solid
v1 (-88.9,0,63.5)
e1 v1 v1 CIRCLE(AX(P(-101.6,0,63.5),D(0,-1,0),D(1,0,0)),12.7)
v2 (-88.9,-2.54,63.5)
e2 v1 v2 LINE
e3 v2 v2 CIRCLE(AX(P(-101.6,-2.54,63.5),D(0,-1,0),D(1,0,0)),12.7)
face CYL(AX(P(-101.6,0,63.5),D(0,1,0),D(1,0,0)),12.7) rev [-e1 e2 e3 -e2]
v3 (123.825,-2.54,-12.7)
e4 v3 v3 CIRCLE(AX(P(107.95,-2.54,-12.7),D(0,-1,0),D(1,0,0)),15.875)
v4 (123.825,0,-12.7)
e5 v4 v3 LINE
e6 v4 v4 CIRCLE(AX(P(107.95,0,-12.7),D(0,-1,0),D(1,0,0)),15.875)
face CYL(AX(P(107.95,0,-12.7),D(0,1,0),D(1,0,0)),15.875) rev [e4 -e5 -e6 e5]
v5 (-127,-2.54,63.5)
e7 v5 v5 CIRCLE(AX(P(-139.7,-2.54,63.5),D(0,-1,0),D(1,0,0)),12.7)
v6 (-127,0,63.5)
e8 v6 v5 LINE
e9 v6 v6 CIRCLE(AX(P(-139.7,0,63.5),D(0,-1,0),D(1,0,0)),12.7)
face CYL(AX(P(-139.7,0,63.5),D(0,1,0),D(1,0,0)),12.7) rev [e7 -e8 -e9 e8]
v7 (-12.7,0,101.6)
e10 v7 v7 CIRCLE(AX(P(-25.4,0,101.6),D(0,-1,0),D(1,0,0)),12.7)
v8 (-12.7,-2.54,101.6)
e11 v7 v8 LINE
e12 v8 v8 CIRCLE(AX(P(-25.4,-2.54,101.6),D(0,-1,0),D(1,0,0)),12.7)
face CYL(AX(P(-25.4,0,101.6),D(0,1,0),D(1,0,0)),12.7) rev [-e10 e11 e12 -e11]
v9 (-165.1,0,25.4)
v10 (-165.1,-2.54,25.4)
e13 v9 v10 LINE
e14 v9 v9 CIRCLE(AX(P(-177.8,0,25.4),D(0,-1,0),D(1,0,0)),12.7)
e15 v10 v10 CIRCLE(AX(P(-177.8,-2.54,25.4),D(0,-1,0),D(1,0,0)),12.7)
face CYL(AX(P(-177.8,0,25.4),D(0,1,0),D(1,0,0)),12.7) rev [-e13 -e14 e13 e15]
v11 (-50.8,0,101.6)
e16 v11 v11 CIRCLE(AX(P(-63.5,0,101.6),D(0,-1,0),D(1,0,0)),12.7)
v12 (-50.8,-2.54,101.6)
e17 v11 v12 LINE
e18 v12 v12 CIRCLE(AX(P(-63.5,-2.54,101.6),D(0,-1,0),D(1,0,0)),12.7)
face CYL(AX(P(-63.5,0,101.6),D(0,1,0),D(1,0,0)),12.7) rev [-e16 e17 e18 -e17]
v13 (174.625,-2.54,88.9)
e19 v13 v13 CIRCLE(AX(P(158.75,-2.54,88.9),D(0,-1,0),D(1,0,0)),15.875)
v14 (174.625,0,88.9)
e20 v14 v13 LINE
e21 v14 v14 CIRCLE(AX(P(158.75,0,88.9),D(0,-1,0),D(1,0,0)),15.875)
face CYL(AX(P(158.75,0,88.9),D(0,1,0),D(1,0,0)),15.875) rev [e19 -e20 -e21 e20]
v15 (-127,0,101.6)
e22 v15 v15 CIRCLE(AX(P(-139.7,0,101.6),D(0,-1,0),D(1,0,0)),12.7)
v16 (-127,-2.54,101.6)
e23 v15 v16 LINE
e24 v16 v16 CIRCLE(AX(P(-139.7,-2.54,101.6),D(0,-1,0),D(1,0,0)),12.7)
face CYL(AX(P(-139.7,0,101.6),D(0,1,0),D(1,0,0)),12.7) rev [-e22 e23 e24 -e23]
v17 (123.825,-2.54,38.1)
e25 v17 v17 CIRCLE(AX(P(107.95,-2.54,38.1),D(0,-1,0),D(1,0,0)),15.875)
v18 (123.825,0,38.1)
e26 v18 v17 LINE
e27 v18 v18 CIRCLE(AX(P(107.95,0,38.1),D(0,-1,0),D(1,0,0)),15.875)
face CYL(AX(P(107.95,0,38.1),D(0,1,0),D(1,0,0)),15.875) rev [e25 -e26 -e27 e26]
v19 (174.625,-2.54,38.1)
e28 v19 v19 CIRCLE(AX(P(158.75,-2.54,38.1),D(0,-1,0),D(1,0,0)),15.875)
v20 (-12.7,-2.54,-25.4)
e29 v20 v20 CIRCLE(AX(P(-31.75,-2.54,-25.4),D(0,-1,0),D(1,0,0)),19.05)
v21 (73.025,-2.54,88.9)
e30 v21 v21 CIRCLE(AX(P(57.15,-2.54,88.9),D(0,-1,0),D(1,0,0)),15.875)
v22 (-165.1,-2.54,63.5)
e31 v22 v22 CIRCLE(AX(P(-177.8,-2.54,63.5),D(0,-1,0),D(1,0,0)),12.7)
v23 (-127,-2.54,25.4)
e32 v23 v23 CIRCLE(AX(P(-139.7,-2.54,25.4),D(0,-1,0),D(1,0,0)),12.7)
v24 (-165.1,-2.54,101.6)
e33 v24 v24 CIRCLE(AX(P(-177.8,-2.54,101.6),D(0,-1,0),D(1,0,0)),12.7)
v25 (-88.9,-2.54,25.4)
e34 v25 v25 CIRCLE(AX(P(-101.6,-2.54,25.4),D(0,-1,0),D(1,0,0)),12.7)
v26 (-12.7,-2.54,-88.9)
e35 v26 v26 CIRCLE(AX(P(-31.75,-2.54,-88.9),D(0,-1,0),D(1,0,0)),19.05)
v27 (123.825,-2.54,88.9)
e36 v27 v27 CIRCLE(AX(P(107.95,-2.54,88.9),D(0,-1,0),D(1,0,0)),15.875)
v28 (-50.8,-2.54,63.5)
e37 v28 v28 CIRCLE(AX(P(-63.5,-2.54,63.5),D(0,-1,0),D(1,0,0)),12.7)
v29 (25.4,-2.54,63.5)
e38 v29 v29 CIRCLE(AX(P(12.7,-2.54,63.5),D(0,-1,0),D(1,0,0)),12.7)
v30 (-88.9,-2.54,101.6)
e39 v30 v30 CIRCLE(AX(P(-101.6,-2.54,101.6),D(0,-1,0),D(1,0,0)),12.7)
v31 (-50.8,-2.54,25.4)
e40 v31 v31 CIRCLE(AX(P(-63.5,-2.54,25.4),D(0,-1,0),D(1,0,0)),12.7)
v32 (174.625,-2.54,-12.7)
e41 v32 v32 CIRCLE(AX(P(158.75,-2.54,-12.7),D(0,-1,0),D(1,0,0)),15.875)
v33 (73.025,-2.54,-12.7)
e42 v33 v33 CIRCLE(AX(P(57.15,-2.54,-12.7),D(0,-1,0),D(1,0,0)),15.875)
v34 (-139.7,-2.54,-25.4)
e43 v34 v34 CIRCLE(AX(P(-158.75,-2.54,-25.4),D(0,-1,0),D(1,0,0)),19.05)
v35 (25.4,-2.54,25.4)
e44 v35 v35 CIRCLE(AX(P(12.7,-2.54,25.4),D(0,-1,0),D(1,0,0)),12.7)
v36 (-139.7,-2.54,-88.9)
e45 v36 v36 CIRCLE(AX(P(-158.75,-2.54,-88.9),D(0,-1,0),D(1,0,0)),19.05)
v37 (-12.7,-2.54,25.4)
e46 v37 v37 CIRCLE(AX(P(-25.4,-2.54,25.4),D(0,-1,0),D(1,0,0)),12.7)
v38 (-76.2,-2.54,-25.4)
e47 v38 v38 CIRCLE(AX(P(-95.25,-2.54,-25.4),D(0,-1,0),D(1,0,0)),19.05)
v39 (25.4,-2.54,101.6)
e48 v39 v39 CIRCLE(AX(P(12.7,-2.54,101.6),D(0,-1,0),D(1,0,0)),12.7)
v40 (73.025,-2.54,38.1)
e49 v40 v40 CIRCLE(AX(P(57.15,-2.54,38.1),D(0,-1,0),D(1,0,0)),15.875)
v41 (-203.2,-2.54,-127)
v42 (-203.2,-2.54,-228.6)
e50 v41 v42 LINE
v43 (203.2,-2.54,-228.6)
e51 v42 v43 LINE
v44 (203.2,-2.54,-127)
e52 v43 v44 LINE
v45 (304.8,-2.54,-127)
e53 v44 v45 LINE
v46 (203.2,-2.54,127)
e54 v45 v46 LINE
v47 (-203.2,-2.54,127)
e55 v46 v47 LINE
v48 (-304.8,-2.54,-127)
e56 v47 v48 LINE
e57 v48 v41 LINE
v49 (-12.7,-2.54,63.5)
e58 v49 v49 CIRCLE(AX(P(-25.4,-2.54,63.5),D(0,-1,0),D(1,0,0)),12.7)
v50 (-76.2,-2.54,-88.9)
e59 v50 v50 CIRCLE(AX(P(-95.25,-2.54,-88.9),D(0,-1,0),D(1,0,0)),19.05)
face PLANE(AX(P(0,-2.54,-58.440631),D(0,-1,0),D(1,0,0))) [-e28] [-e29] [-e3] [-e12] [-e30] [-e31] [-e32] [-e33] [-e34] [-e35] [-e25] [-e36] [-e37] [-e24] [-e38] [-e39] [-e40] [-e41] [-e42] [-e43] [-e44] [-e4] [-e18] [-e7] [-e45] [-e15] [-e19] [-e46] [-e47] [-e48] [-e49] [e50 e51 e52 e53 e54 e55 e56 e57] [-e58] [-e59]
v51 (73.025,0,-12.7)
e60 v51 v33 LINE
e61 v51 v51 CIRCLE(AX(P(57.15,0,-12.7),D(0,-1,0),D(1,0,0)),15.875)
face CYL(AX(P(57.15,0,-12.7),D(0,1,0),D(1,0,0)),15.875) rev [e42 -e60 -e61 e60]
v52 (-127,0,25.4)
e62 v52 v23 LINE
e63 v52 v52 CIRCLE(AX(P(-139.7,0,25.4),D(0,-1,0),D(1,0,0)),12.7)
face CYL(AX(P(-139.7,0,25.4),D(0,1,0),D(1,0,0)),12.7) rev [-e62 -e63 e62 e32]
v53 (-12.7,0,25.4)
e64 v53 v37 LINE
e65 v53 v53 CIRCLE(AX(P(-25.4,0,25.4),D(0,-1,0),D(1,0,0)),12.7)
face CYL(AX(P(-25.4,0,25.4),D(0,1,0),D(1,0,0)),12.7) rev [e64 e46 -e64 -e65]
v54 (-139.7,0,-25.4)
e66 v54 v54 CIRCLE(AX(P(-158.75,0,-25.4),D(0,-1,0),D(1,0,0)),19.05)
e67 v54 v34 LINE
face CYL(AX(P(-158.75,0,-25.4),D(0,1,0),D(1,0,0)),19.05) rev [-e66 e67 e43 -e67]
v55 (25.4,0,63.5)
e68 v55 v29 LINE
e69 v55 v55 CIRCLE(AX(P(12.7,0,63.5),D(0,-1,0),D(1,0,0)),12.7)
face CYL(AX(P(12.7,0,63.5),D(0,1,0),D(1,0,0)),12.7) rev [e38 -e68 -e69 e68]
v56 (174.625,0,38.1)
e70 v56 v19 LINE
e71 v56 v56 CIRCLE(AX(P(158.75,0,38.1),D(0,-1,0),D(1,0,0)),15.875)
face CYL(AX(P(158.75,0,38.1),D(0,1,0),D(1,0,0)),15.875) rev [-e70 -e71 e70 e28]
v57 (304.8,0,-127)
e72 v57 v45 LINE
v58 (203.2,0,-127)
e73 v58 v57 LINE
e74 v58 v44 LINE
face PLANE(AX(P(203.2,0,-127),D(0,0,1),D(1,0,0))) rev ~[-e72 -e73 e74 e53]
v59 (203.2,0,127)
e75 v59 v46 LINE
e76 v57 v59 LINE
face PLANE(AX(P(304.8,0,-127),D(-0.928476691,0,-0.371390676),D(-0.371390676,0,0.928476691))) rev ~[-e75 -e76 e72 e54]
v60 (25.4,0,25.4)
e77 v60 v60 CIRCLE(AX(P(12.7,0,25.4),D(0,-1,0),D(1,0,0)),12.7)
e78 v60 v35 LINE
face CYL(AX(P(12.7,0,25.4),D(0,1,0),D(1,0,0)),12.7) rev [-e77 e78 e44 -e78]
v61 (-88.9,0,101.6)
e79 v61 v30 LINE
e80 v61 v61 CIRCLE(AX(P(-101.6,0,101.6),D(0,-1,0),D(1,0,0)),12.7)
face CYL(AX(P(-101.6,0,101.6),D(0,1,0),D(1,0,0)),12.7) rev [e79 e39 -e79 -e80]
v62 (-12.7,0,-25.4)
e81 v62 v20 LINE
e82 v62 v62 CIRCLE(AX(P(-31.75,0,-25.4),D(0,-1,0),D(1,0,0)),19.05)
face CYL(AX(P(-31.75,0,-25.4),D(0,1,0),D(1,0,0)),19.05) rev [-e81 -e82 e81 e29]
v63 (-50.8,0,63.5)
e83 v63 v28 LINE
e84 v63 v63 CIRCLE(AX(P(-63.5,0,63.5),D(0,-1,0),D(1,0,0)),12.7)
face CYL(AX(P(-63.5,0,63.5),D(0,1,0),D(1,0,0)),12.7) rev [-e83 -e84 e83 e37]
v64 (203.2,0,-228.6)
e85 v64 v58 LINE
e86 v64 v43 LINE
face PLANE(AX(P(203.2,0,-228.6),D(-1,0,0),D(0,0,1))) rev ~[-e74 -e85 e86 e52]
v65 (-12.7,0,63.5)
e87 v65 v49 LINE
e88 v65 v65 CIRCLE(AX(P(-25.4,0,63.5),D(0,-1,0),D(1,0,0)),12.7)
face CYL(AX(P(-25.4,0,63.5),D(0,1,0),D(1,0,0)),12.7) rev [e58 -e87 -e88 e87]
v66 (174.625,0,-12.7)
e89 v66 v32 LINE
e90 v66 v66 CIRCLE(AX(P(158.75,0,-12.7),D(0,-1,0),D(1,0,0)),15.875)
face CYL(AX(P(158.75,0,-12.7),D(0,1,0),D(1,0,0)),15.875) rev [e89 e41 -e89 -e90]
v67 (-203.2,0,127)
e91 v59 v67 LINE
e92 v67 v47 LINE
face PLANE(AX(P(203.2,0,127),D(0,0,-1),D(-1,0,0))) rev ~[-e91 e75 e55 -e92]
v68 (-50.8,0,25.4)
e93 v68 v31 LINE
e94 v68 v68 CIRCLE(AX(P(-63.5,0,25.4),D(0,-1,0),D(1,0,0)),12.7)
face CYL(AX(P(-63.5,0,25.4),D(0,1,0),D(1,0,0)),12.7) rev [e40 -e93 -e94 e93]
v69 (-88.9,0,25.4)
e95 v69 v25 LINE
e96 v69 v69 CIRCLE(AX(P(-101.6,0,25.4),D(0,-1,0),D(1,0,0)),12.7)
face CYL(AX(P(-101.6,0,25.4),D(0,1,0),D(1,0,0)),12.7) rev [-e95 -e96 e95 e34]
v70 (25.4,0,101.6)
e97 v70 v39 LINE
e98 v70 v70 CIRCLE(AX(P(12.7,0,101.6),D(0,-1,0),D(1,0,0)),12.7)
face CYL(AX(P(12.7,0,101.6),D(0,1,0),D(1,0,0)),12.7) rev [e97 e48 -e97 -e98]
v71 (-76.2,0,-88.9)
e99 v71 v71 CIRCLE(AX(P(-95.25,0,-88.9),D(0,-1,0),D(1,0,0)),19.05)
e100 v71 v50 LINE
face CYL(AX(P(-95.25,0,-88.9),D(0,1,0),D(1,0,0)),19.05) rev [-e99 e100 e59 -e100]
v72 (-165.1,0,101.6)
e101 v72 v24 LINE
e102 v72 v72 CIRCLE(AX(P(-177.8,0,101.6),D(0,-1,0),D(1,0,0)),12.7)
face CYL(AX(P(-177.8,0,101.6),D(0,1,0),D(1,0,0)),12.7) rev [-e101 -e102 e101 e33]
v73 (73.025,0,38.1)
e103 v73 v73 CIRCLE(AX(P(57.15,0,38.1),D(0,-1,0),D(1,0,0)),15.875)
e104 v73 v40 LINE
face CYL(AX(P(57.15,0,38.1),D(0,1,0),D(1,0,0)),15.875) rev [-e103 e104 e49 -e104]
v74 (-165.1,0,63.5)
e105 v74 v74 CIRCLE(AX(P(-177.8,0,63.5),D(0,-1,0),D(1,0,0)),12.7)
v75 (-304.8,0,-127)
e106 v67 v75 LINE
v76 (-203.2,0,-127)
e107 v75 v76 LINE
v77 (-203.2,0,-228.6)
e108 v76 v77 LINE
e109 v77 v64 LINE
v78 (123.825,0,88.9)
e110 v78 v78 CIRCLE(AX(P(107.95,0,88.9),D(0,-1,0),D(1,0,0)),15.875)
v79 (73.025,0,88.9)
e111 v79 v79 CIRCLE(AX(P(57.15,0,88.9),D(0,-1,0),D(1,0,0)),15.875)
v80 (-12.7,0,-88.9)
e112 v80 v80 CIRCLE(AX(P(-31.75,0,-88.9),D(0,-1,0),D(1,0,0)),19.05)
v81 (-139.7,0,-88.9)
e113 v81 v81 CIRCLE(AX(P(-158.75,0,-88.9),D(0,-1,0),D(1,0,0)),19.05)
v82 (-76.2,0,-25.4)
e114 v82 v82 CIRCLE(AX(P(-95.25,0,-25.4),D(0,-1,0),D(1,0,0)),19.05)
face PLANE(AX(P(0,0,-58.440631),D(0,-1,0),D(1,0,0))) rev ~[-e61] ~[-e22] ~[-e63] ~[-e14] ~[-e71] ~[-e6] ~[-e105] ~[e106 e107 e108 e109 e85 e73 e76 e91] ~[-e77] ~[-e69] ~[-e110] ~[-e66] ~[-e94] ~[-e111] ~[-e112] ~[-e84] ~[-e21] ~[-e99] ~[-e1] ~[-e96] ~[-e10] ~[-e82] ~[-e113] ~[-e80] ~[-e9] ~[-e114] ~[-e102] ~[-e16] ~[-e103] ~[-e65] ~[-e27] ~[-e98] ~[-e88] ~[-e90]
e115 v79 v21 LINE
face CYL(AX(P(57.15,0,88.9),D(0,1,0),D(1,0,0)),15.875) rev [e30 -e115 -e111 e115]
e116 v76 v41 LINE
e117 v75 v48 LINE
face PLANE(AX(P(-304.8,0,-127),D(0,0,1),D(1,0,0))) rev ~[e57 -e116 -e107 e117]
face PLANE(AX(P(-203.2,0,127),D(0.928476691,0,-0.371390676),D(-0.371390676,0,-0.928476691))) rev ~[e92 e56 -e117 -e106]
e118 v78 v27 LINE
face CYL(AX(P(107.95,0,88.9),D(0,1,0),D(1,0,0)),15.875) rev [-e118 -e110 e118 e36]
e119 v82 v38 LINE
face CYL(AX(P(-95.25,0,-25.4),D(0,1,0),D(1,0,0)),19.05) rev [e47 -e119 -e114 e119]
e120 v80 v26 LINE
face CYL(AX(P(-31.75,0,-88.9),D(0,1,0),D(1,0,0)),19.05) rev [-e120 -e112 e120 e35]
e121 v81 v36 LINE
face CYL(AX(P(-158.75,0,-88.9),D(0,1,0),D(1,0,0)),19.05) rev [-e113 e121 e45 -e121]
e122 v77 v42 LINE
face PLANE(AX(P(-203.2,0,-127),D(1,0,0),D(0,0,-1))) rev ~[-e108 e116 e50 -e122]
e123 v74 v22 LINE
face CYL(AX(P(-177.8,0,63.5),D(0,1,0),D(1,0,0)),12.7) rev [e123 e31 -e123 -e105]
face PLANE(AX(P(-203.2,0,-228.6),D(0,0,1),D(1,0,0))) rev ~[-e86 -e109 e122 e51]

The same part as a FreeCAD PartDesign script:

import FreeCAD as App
import Part
import Sketcher
Q = App.Units.Quantity

doc = App.newDocument("Part")
body = doc.addObject("PartDesign::Body", "Body")

# Sketch on XZ plane
sketch1 = body.newObject("Sketcher::SketchObject", "Sketch")
sketch1.AttachmentSupport = (doc.getObject("XZ_Plane"), [""])
sketch1.MapMode = "FlatFace"
sketch1.addGeometry([
    Part.LineSegment(App.Vector(305, -127, 0), App.Vector(203, 127, 0)),  # 0
    Part.LineSegment(App.Vector(203, 127, 0), App.Vector(-203, 127, 0)),  # 1
    Part.LineSegment(App.Vector(-203, 127, 0), App.Vector(-305, -127, 0)),  # 2
    Part.LineSegment(App.Vector(-305, -127, 0), App.Vector(-203, -127, 0)),  # 3
    Part.LineSegment(App.Vector(-203, -127, 0), App.Vector(-203, -229, 0)),  # 4
    Part.LineSegment(App.Vector(-203, -229, 0), App.Vector(203, -229, 0)),  # 5
    Part.LineSegment(App.Vector(203, -229, 0), App.Vector(203, -127, 0)),  # 6
    Part.LineSegment(App.Vector(203, -127, 0), App.Vector(305, -127, 0)),  # 7
    Part.Circle(App.Vector(-159, -89, 0), App.Vector(0, 0, 1), 19),  # 8
    Part.Circle(App.Vector(-95, -89, 0), App.Vector(0, 0, 1), 19),  # 9
    Part.Circle(App.Vector(-32, -89, 0), App.Vector(0, 0, 1), 19),  # 10
    Part.Circle(App.Vector(-159, -25, 0), App.Vector(0, 0, 1), 19),  # 11
    Part.Circle(App.Vector(-95, -25, 0), App.Vector(0, 0, 1), 19),  # 12
    Part.Circle(App.Vector(-32, -25, 0), App.Vector(0, 0, 1), 19),  # 13
    Part.Circle(App.Vector(57, -13, 0), App.Vector(0, 0, 1), 16),  # 14
    Part.Circle(App.Vector(108, -13, 0), App.Vector(0, 0, 1), 16),  # 15
    Part.Circle(App.Vector(159, -13, 0), App.Vector(0, 0, 1), 16),  # 16
    Part.Circle(App.Vector(-178, 25, 0), App.Vector(0, 0, 1), 13),  # 17
    Part.Circle(App.Vector(-140, 25, 0), App.Vector(0, 0, 1), 13),  # 18
    Part.Circle(App.Vector(-102, 25, 0), App.Vector(0, 0, 1), 13),  # 19
    Part.Circle(App.Vector(-64, 25, 0), App.Vector(0, 0, 1), 13),  # 20
    Part.Circle(App.Vector(-25, 25, 0), App.Vector(0, 0, 1), 13),  # 21
    Part.Circle(App.Vector(-178, 64, 0), App.Vector(0, 0, 1), 13),  # 22
    Part.Circle(App.Vector(-140, 64, 0), App.Vector(0, 0, 1), 13),  # 23
    Part.Circle(App.Vector(-102, 64, 0), App.Vector(0, 0, 1), 13),  # 24
    Part.Circle(App.Vector(-178, 102, 0), App.Vector(0, 0, 1), 13),  # 25
    Part.Circle(App.Vector(-140, 102, 0), App.Vector(0, 0, 1), 13),  # 26
    Part.Circle(App.Vector(-102, 102, 0), App.Vector(0, 0, 1), 13),  # 27
    Part.Circle(App.Vector(-64, 64, 0), App.Vector(0, 0, 1), 13),  # 28
    Part.Circle(App.Vector(-25, 64, 0), App.Vector(0, 0, 1), 13),  # 29
    Part.Circle(App.Vector(-64, 102, 0), App.Vector(0, 0, 1), 13),  # 30
    Part.Circle(App.Vector(-25, 102, 0), App.Vector(0, 0, 1), 13),  # 31
    Part.Circle(App.Vector(13, 25, 0), App.Vector(0, 0, 1), 13),  # 32
    Part.Circle(App.Vector(57, 38, 0), App.Vector(0, 0, 1), 16),  # 33
    Part.Circle(App.Vector(108, 38, 0), App.Vector(0, 0, 1), 16),  # 34
    Part.Circle(App.Vector(159, 38, 0), App.Vector(0, 0, 1), 16),  # 35
    Part.Circle(App.Vector(13, 64, 0), App.Vector(0, 0, 1), 13),  # 36
    Part.Circle(App.Vector(13, 102, 0), App.Vector(0, 0, 1), 13),  # 37
    Part.Circle(App.Vector(57, 89, 0), App.Vector(0, 0, 1), 16),  # 38
    Part.Circle(App.Vector(108, 89, 0), App.Vector(0, 0, 1), 16),  # 39
    Part.Circle(App.Vector(159, 89, 0), App.Vector(0, 0, 1), 16),  # 40
], False)
sketch1.addConstraint([
    Sketcher.Constraint("Coincident", 0, 2, 1, 1),
    Sketcher.Constraint("Coincident", 1, 2, 2, 1),
    Sketcher.Constraint("Coincident", 2, 2, 3, 1),
    Sketcher.Constraint("Coincident", 3, 2, 4, 1),
    Sketcher.Constraint("Coincident", 4, 2, 5, 1),
    Sketcher.Constraint("Coincident", 5, 2, 6, 1),
    Sketcher.Constraint("Coincident", 6, 2, 7, 1),
    Sketcher.Constraint("Coincident", 7, 2, 0, 1),
    Sketcher.Constraint("Horizontal", 1),
    Sketcher.Constraint("Horizontal", 3),
    Sketcher.Constraint("Vertical", 4),
    Sketcher.Constraint("Horizontal", 5),
    Sketcher.Constraint("Vertical", 6),
    Sketcher.Constraint("Horizontal", 7),
    Sketcher.Constraint("Equal", 8, 9),
    Sketcher.Constraint("Equal", 9, 10),
    Sketcher.Constraint("Equal", 10, 11),
    Sketcher.Constraint("Equal", 11, 12),
    Sketcher.Constraint("Equal", 12, 13),
    Sketcher.Constraint("Equal", 14, 15),
    Sketcher.Constraint("Equal", 15, 16),
    Sketcher.Constraint("Equal", 17, 18),
    Sketcher.Constraint("Equal", 18, 19),
    Sketcher.Constraint("Equal", 19, 20),
    Sketcher.Constraint("Equal", 20, 21),
    Sketcher.Constraint("Equal", 21, 22),
    Sketcher.Constraint("Equal", 22, 23),
    Sketcher.Constraint("Equal", 23, 24),
    Sketcher.Constraint("Equal", 24, 25),
    Sketcher.Constraint("Equal", 25, 26),
    Sketcher.Constraint("Equal", 26, 27),
    Sketcher.Constraint("Equal", 27, 28),
    Sketcher.Constraint("Equal", 28, 29),
    Sketcher.Constraint("Equal", 29, 30),
    Sketcher.Constraint("Equal", 30, 31),
    Sketcher.Constraint("Equal", 31, 32),
    Sketcher.Constraint("Equal", 16, 33),
    Sketcher.Constraint("Equal", 33, 34),
    Sketcher.Constraint("Equal", 34, 35),
    Sketcher.Constraint("Equal", 32, 36),
    Sketcher.Constraint("Equal", 36, 37),
    Sketcher.Constraint("Equal", 35, 38),
    Sketcher.Constraint("Equal", 38, 39),
    Sketcher.Constraint("Equal", 39, 40),
    Sketcher.Constraint("Symmetric", 8, 3, 40, 3, -1, 1),
    Sketcher.Constraint("Symmetric", 0, 2, 3, 2, -1, 1),
    Sketcher.Constraint("Symmetric", 1, 2, 6, 2, -1, 1),
    Sketcher.Constraint("Horizontal", 8, 3, 9, 3),
    Sketcher.Constraint("Horizontal", 9, 3, 10, 3),
    Sketcher.Constraint("Horizontal", 11, 3, 12, 3),
    Sketcher.Constraint("Horizontal", 12, 3, 13, 3),
    Sketcher.Constraint("Horizontal", 14, 3, 15, 3),
    Sketcher.Constraint("Horizontal", 15, 3, 16, 3),
    Sketcher.Constraint("Horizontal", 17, 3, 18, 3),
    Sketcher.Constraint("Horizontal", 18, 3, 19, 3),
    Sketcher.Constraint("Horizontal", 19, 3, 20, 3),
    Sketcher.Constraint("Horizontal", 20, 3, 21, 3),
    Sketcher.Constraint("Horizontal", 22, 3, 23, 3),
    Sketcher.Constraint("Horizontal", 23, 3, 24, 3),
    Sketcher.Constraint("Horizontal", 25, 3, 26, 3),
    Sketcher.Constraint("Horizontal", 26, 3, 27, 3),
    Sketcher.Constraint("Horizontal", 24, 3, 28, 3),
    Sketcher.Constraint("Horizontal", 28, 3, 29, 3),
    Sketcher.Constraint("Horizontal", 27, 3, 30, 3),
    Sketcher.Constraint("Horizontal", 30, 3, 31, 3),
    Sketcher.Constraint("Horizontal", 21, 3, 32, 3),
    Sketcher.Constraint("Horizontal", 33, 3, 34, 3),
    Sketcher.Constraint("Horizontal", 34, 3, 35, 3),
    Sketcher.Constraint("Horizontal", 29, 3, 36, 3),
    Sketcher.Constraint("Horizontal", 31, 3, 37, 3),
    Sketcher.Constraint("Horizontal", 38, 3, 39, 3),
    Sketcher.Constraint("Horizontal", 39, 3, 40, 3),
    Sketcher.Constraint("Vertical", 8, 3, 11, 3),
    Sketcher.Constraint("Vertical", 9, 3, 12, 3),
    Sketcher.Constraint("Vertical", 10, 3, 13, 3),
    Sketcher.Constraint("Vertical", 17, 3, 22, 3),
    Sketcher.Constraint("Vertical", 18, 3, 23, 3),
    Sketcher.Constraint("Vertical", 19, 3, 24, 3),
    Sketcher.Constraint("Vertical", 22, 3, 25, 3),
    Sketcher.Constraint("Vertical", 23, 3, 26, 3),
    Sketcher.Constraint("Vertical", 24, 3, 27, 3),
    Sketcher.Constraint("Vertical", 20, 3, 28, 3),
    Sketcher.Constraint("Vertical", 21, 3, 29, 3),
    Sketcher.Constraint("Vertical", 28, 3, 30, 3),
    Sketcher.Constraint("Vertical", 29, 3, 31, 3),
    Sketcher.Constraint("Vertical", 14, 3, 33, 3),
    Sketcher.Constraint("Vertical", 15, 3, 34, 3),
    Sketcher.Constraint("Vertical", 16, 3, 35, 3),
    Sketcher.Constraint("Vertical", 32, 3, 36, 3),
    Sketcher.Constraint("Vertical", 36, 3, 37, 3),
    Sketcher.Constraint("Vertical", 33, 3, 38, 3),
    Sketcher.Constraint("Vertical", 34, 3, 39, 3),
    Sketcher.Constraint("Vertical", 35, 3, 40, 3),
    Sketcher.Constraint("Vertical", 1, 2, 3, 2),
    Sketcher.Constraint("Equal", 3, 7),
    Sketcher.Constraint("Equal", 7, 4),
    Sketcher.Constraint("Diameter", 17, Q("1 in")),
    Sketcher.Constraint("Diameter", 8, Q("1.5 in")),
    Sketcher.Constraint("Diameter", 14, Q("1.25 in")),
    Sketcher.Constraint("DistanceX", 1, 2, 1, 1, Q("16 in")),
    Sketcher.Constraint("DistanceX", 3, 1, 3, 2, Q("4 in")),
    Sketcher.Constraint("DistanceY", 11, 3, -1, 1, Q("1 in")),
    Sketcher.Constraint("DistanceX", 17, 3, -1, 1, Q("7 in")),
    Sketcher.Constraint("DistanceY", -1, 1, 17, 3, Q("1 in")),
    Sketcher.Constraint("DistanceX", 19, 3, -1, 1, Q("4 in")),
    Sketcher.Constraint("DistanceX", 21, 3, -1, 1, Q("1 in")),
    Sketcher.Constraint("DistanceY", -1, 1, 25, 3, Q("4 in")),
    Sketcher.Constraint("DistanceY", -1, 1, 0, 2, Q("5 in")),
    Sketcher.Constraint("DistanceX", 8, 3, 10, 3, Q("5 in")),
    Sketcher.Constraint("DistanceY", 10, 3, 14, 3, Q("3 in")),
    Sketcher.Constraint("DistanceX", 12, 3, 14, 3, Q("6 in")),
    Sketcher.Constraint("DistanceX", 14, 3, 15, 3, Q("2 in")),
    Sketcher.Constraint("DistanceX", 15, 3, 16, 3, Q("2 in")),
    Sketcher.Constraint("DistanceX", 18, 3, 20, 3, Q("3 in")),
    Sketcher.Constraint("DistanceX", 20, 3, 32, 3, Q("3 in")),
    Sketcher.Constraint("DistanceY", 14, 3, 33, 3, Q("2 in")),
    Sketcher.Constraint("DistanceY", 33, 3, 29, 3, Q("1 in")),
    Sketcher.Constraint("DistanceY", 33, 3, 38, 3, Q("2 in")),
    Sketcher.Constraint("DistanceX", 18, 3, -1, 1, Q("5.5 in")),
    Sketcher.Constraint("DistanceX", 8, 3, 9, 3, Q("2.5 in")),
])
pad1 = body.newObject("PartDesign::Pad", "Pad")
pad1.Profile = sketch1
pad1.Length = Q("0.1 in")

doc.recompute()
